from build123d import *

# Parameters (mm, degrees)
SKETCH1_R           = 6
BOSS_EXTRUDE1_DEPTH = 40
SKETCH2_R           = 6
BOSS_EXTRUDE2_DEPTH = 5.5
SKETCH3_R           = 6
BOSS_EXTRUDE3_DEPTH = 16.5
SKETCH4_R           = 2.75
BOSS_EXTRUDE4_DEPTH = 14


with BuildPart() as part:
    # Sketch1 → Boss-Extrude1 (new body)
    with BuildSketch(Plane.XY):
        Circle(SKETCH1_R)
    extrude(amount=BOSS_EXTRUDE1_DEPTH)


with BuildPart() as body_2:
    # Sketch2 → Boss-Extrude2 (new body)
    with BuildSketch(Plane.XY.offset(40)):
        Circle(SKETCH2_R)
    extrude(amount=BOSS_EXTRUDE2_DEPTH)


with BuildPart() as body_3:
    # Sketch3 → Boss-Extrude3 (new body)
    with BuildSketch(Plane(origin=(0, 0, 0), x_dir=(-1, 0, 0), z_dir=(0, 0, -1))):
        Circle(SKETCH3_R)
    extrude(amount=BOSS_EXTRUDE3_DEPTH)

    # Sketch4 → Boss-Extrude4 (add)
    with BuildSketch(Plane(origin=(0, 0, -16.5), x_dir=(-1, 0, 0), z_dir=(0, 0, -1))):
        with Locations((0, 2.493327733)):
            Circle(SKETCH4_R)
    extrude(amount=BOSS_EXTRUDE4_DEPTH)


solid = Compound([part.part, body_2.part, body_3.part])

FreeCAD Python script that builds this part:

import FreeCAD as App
import Part
import Sketcher

V = App.Vector
Q = App.Units.Quantity

doc = App.newDocument("Part")
body = doc.addObject("PartDesign::Body", "Body")

# Sketch on XY plane
sketch1 = body.newObject("Sketcher::SketchObject", "Sketch")
sketch1.AttachmentSupport = (doc.getObject("XY_Plane"), [""])
sketch1.MapMode = "FlatFace"
sketch1.addGeometry(Part.Circle(V(0, 0, 0), V(0, 0, 1), 6), False)
sketch1.addConstraint([
    Sketcher.Constraint("Coincident", 0, 3, -1, 1),
    Sketcher.Constraint("Diameter", 0, Q("12 mm")),
])
pad1 = body.newObject("PartDesign::Pad", "Pad")
pad1.Profile = sketch1
pad1.Length = 40
body2 = doc.addObject("PartDesign::Body", "Body001")

# Sketch on XY plane
sketch2 = body2.newObject("Sketcher::SketchObject", "Sketch001")
sketch2.AttachmentSupport = (doc.getObject("XY_Plane001"), [""])
sketch2.MapMode = "FlatFace"
sketch2.AttachmentOffset = App.Placement(V(0, 0, 40), App.Rotation())
sketch2.addGeometry(Part.Circle(V(0, 0, 0), V(0, 0, 1), 6), False)
sketch2.addConstraint([
    Sketcher.Constraint("Coincident", 0, 3, -1, 1),
    Sketcher.Constraint("Diameter", 0, Q("12 mm")),
])
pad2 = body2.newObject("PartDesign::Pad", "Pad001")
pad2.Profile = sketch2
pad2.Length = 5.5
body3 = doc.addObject("PartDesign::Body", "Body002")

# Sketch on XY plane
sketch3 = body3.newObject("Sketcher::SketchObject", "Sketch002")
sketch3.AttachmentSupport = (doc.getObject("XY_Plane002"), [""])
sketch3.MapMode = "FlatFace"
sketch3.addGeometry(Part.Circle(V(0, 0, 0), V(0, 0, 1), 6), False)
sketch3.addConstraint([
    Sketcher.Constraint("Coincident", 0, 3, -1, 1),
    Sketcher.Constraint("Diameter", 0, Q("12 mm")),
])
pad3 = body3.newObject("PartDesign::Pad", "Pad002")
pad3.Profile = sketch3
pad3.Length = 16.5
pad3.Reversed = True

# Sketch on XY plane
sketch4 = body3.newObject("Sketcher::SketchObject", "Sketch003")
sketch4.AttachmentSupport = (doc.getObject("XY_Plane002"), [""])
sketch4.MapMode = "FlatFace"
sketch4.AttachmentOffset = App.Placement(V(0, 0, -16.5), App.Rotation())
sketch4.addGeometry(Part.Circle(V(0, 2.493328, 0), V(0, 0, 1), 2.75), False)
sketch4.addConstraint([
    Sketcher.Constraint("PointOnObject", 0, 3, -2),
    Sketcher.Constraint("Diameter", 0, Q("5.5 mm")),
    Sketcher.Constraint("DistanceY", -1, 1, 0, 3, Q("2.493328 mm")),
])
pad4 = body3.newObject("PartDesign::Pad", "Pad003")
pad4.Profile = sketch4
pad4.Length = 14
pad4.Reversed = True

doc.recompute()
